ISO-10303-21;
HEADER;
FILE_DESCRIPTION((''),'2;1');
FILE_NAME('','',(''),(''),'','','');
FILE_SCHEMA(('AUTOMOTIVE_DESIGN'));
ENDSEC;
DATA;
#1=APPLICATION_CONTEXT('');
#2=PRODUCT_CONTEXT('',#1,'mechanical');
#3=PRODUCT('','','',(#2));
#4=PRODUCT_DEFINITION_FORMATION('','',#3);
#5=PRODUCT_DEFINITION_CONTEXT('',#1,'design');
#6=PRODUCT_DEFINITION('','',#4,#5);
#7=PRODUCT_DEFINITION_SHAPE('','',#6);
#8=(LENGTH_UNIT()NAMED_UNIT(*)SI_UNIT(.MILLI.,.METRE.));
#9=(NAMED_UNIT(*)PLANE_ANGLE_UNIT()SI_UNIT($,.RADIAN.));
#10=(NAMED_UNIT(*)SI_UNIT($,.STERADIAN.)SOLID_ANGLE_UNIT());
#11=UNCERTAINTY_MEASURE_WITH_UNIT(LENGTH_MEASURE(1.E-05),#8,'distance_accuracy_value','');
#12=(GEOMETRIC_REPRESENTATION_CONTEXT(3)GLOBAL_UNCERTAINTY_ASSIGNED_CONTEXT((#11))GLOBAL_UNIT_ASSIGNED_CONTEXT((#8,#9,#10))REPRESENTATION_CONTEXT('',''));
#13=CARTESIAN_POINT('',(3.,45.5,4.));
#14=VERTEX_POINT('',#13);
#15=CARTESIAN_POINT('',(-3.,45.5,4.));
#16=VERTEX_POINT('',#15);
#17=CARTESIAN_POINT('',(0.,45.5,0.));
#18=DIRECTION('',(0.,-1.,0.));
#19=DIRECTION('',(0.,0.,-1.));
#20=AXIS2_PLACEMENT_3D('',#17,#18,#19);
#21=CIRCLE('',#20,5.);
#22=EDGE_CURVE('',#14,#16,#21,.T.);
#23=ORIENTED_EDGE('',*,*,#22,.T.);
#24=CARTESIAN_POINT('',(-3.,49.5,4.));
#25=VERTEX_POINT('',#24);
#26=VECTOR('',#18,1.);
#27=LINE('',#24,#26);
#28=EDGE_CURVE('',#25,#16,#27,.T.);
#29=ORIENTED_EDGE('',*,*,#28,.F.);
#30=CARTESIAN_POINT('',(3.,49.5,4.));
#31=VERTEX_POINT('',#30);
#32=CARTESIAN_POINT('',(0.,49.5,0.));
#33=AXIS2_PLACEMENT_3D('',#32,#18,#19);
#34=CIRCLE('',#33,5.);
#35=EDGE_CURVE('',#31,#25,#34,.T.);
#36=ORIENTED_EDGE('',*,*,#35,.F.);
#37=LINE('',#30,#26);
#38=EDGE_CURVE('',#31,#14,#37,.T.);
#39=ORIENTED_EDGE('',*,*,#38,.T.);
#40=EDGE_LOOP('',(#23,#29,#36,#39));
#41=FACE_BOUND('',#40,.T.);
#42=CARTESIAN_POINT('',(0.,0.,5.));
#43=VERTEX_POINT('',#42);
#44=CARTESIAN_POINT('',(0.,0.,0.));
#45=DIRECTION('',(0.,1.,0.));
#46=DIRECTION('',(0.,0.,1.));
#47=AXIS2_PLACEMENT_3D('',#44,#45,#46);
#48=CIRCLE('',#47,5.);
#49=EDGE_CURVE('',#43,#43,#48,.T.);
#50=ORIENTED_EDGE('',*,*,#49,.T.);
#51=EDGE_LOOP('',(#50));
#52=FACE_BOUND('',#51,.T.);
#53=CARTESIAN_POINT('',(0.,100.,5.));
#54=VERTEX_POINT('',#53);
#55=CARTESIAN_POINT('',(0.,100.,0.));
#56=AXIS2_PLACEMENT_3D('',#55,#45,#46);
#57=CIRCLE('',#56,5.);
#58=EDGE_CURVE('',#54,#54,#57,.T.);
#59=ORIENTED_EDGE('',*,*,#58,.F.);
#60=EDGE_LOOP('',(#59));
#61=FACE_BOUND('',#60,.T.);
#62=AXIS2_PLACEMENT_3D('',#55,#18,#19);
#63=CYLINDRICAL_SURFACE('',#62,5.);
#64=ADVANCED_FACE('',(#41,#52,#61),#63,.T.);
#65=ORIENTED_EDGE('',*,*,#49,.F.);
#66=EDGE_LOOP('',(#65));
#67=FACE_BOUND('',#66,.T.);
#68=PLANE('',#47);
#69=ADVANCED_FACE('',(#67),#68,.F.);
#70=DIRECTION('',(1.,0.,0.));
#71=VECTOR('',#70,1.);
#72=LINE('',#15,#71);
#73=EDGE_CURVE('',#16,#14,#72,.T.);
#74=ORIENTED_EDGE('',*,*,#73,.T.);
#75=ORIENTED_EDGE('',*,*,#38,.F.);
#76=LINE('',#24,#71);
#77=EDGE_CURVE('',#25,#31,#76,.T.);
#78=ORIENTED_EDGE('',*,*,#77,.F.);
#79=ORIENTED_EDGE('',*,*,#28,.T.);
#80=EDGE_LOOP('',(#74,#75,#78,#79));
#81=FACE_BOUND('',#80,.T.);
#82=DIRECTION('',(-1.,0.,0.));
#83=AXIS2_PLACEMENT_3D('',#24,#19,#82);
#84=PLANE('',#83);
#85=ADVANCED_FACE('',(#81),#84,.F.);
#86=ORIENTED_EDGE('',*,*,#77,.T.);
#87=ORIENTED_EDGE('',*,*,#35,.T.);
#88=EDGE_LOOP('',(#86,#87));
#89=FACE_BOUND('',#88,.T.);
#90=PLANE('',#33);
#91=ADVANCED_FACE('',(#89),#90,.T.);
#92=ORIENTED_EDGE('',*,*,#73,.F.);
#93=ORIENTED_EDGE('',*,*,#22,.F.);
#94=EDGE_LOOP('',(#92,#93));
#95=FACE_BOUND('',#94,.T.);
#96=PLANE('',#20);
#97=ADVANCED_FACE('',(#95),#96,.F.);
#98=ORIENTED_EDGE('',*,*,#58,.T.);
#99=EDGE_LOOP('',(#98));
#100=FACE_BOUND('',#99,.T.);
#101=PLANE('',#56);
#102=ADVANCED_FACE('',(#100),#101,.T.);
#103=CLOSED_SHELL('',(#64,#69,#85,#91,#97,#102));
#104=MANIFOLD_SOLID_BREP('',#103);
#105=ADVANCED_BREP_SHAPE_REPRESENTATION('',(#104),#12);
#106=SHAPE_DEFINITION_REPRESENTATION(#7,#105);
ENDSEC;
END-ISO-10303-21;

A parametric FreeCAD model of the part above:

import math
import FreeCAD as App
import Part
import Sketcher

V = App.Vector

doc = App.newDocument("Part")
body = doc.addObject("PartDesign::Body", "Body")

# Sketch on XZ plane
sketch1 = body.newObject("Sketcher::SketchObject", "Sketch")
sketch1.AttachmentSupport = (doc.getObject("XZ_Plane"), [""])
sketch1.MapMode = "FlatFace"
sketch1.addGeometry(Part.Circle(V(0, 0, 0), V(0, 0, 1), 5), False)
sketch1.addConstraint(Sketcher.Constraint("Coincident", 0, 3, -1, 1))
sketch1.addConstraint(Sketcher.Constraint("Diameter", 0, 10.0))
pad1 = body.newObject("PartDesign::Pad", "Pad")
pad1.Profile = sketch1
pad1.Length = 100
pad1.Reversed = True

# Sketch on XZ plane
sketch2 = body.newObject("Sketcher::SketchObject", "Sketch001")
sketch2.AttachmentSupport = (doc.getObject("XZ_Plane"), [""])
sketch2.MapMode = "FlatFace"
sketch2.AttachmentOffset = App.Placement(V(0, 0, -45.5), App.Rotation())
sketch2.addGeometry(Part.LineSegment(V(-3, 4, 0), V(3, 4, 0)), False)
sketch2.addGeometry(Part.ArcOfCircle(Part.Circle(V(0, 0, 0), V(0, 0, 1), 5), math.radians(53.130102), math.radians(126.869898)), False)
sketch2.addConstraint(Sketcher.Constraint("Coincident", 0, 1, 1, 2))
sketch2.addConstraint(Sketcher.Constraint("Coincident", 1, 1, 0, 2))
sketch2.addConstraint(Sketcher.Constraint("Horizontal", 0))
sketch2.addConstraint(Sketcher.Constraint("Coincident", 1, 3, -1, 1))
sketch2.addConstraint(Sketcher.Constraint("Radius", 1, 5.0))
sketch2.addConstraint(Sketcher.Constraint("DistanceX", 0, 1, 0, 2, 6.0))
pocket1 = body.newObject("PartDesign::Pocket", "Pocket")
pocket1.Profile = sketch2
pocket1.Length = 4

doc.recompute()
